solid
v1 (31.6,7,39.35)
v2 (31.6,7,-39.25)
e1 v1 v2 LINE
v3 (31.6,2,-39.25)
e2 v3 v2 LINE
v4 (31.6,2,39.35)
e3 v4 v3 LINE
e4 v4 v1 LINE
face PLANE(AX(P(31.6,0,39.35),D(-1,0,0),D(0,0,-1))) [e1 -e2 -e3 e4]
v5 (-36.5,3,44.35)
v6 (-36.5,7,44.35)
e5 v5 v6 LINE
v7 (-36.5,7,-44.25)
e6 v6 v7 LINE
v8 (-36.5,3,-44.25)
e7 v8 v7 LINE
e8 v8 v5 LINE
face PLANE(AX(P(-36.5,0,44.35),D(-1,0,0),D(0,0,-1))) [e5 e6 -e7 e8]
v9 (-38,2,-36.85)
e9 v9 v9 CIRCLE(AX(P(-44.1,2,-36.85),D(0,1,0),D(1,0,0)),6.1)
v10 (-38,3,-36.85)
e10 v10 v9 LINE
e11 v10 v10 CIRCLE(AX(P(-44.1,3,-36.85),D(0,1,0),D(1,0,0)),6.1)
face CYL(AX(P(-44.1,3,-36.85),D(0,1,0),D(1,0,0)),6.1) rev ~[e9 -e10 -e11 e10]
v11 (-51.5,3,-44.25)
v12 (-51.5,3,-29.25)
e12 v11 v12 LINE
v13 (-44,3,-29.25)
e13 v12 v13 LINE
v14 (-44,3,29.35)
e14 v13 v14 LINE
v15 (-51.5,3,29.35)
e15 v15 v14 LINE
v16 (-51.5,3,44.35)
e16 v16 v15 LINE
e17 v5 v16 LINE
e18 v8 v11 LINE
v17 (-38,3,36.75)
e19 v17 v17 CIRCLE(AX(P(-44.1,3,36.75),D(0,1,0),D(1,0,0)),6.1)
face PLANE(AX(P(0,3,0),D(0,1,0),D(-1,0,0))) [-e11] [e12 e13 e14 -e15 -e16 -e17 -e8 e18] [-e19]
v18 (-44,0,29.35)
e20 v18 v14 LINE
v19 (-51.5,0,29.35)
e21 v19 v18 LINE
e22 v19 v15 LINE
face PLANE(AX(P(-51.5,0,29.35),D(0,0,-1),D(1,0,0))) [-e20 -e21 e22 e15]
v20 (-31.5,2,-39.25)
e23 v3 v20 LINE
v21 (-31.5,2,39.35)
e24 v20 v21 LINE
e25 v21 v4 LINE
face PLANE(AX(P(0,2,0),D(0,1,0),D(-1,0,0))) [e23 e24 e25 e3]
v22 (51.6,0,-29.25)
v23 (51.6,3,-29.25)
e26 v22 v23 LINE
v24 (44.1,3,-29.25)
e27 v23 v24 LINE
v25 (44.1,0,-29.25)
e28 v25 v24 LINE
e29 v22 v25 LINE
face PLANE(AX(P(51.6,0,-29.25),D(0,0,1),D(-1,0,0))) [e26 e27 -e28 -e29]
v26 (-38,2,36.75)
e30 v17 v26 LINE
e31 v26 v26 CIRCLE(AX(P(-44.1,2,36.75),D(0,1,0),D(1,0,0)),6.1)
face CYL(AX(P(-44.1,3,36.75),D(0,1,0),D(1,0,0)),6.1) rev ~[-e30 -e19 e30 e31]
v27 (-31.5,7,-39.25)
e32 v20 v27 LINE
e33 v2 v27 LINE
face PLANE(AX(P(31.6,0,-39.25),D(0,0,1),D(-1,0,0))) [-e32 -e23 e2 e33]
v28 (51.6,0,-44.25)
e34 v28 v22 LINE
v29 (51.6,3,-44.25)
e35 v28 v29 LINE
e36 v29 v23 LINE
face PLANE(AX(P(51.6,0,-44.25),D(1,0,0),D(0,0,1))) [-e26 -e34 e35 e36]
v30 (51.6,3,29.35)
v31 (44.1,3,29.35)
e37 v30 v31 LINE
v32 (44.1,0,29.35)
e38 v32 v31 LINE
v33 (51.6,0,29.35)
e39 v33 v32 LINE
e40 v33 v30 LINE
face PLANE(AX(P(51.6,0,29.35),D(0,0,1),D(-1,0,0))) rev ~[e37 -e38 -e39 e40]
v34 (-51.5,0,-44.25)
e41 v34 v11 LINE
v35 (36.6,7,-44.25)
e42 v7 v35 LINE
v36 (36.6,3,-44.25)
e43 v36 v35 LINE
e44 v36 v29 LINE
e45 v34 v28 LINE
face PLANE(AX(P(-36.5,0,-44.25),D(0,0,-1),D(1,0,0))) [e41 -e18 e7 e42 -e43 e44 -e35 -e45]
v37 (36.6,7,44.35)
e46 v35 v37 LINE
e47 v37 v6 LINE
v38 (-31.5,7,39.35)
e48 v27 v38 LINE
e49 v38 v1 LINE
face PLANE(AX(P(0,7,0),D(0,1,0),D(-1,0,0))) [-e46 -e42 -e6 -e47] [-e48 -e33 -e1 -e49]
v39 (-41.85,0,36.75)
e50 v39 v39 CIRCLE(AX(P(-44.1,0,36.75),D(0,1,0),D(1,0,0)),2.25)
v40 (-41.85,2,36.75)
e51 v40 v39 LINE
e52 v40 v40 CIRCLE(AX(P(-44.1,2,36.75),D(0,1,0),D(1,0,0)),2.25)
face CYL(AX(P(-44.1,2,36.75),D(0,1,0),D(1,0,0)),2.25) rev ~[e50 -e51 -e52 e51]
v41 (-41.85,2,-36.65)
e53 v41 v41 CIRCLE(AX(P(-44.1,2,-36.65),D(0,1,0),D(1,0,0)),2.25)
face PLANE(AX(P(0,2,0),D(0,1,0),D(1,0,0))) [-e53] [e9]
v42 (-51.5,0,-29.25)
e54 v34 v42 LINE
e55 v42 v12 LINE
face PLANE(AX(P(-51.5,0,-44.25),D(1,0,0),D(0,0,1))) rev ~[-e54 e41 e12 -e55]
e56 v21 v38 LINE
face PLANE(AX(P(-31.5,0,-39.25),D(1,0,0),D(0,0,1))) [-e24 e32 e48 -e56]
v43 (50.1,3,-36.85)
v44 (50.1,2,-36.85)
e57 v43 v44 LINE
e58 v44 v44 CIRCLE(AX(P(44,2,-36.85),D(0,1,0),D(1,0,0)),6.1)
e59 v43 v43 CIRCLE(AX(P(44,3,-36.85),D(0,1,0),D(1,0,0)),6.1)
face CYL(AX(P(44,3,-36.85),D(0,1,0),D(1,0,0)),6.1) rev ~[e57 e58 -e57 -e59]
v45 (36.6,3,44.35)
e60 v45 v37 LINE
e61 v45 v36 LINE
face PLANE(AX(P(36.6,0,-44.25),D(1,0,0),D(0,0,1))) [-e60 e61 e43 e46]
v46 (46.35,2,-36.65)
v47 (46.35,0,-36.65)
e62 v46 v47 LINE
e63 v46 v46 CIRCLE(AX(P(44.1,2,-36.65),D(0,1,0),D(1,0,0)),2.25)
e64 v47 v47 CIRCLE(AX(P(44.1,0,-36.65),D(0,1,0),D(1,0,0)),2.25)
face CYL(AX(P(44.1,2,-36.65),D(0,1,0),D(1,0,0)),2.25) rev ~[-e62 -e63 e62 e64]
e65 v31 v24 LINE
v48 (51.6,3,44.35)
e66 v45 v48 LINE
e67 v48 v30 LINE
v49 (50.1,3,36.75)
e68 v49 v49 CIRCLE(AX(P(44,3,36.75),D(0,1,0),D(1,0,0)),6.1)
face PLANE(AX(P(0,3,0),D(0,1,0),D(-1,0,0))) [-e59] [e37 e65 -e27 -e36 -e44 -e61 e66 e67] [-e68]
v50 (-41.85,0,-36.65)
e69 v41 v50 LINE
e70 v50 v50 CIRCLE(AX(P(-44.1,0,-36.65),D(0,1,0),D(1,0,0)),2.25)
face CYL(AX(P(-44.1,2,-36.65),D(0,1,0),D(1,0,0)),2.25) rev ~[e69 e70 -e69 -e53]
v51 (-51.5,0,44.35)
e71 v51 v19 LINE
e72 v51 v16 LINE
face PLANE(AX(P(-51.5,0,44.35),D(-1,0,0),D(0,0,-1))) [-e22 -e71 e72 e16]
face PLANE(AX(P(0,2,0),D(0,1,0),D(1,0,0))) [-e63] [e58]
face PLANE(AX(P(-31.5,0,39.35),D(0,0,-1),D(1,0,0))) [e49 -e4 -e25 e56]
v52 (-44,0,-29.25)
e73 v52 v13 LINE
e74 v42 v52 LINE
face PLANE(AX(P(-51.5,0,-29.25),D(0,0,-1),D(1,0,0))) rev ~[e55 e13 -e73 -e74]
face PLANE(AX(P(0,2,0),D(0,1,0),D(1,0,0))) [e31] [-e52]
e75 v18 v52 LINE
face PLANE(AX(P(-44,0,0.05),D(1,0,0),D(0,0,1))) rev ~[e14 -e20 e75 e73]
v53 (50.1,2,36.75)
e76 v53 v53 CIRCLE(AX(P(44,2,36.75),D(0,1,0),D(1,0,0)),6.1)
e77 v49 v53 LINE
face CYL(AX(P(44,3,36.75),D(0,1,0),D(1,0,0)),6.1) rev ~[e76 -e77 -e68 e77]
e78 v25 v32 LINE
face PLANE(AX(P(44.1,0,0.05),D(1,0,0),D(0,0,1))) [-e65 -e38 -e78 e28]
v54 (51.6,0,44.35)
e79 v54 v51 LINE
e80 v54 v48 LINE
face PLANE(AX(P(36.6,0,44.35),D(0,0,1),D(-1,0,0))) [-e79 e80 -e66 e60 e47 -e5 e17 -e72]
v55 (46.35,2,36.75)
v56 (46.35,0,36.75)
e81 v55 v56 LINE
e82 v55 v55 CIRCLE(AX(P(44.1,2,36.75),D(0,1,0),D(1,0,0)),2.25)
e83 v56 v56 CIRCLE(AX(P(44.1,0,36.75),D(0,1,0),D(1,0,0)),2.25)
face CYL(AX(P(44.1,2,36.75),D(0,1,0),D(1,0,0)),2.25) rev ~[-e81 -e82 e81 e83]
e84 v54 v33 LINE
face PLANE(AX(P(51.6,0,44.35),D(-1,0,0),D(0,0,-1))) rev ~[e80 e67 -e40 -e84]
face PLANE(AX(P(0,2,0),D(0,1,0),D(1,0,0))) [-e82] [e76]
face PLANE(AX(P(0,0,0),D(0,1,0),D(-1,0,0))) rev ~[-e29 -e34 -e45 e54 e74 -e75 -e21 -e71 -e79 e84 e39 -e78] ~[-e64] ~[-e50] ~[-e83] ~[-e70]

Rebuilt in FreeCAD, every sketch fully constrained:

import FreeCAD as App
import Part
import Sketcher
from FreeCAD import Vector

doc = App.newDocument("Part")
params = doc.addObject("Spreadsheet::Sheet", "Params")
for row, (alias, value) in enumerate([
    ("sketch1_width", "63.1 mm"),
    ("sketch1_height", "78.6 mm"),
    ("pad1_length", "2 mm"),
    ("sketch2_width", "63.1 mm"),
    ("sketch2_height", "78.6 mm"),
    ("pad2_length", "7 mm"),
    ("sketch3_width", "15 mm"),
    ("sketch3_width2", "7.5 mm"),
    ("sketch3_height", "88.6 mm"),
    ("pad3_length", "3 mm"),
    ("sketch4_diameter", "12.2 mm"),
    ("pocket1_length", "1 mm"),
    ("sketch5_diameter", "4.5 mm"),
    ("pocket2_length", "2 mm"),
], start=1):
    params.set(f"A{row}", alias)
    params.set(f"B{row}", "=" + value)
    params.setAlias(f"B{row}", alias)

body = doc.addObject("PartDesign::Body", "Body")

# Sketch on XZ plane
sketch1 = doc.addObject("Sketcher::SketchObject", "Sketch")
body.addObject(sketch1)
sketch1.AttachmentSupport = (doc.XZ_Plane, [""])
sketch1.MapMode = "FlatFace"
sketch1.addGeometry([
    Part.LineSegment(Vector(-32, 39, 0), Vector(32, 39, 0)),
    Part.LineSegment(Vector(32, 39, 0), Vector(32, -39, 0)),
    Part.LineSegment(Vector(32, -39, 0), Vector(-32, -39, 0)),
    Part.LineSegment(Vector(-32, -39, 0), Vector(-32, 39, 0)),
], False)
sketch1.addConstraint([
    Sketcher.Constraint("Coincident", 0, 2, 1, 1),
    Sketcher.Constraint("Coincident", 1, 2, 2, 1),
    Sketcher.Constraint("Coincident", 2, 2, 3, 1),
    Sketcher.Constraint("Coincident", 3, 2, 0, 1),
    Sketcher.Constraint("Horizontal", 0),
    Sketcher.Constraint("Vertical", 1),
    Sketcher.Constraint("Horizontal", 2),
    Sketcher.Constraint("Vertical", 3),
    Sketcher.Constraint("DistanceX", 0, 1, 0, 2, 63.1),
    Sketcher.Constraint("DistanceY", 1, 2, 1, 1, 78.6),
    Sketcher.Constraint("DistanceX", -1, 1, 0, 2, 31.6),
    Sketcher.Constraint("DistanceY", -1, 1, 0, 2, 39.35),
])
sketch1.setExpression("Constraints[8]", "Params.sketch1_width")
sketch1.setExpression("Constraints[9]", "Params.sketch1_height")
pad1 = doc.addObject("PartDesign::Pad", "Pad")
body.addObject(pad1)
pad1.Profile = sketch1
pad1.setExpression("Length", "Params.pad1_length")
pad1.Reversed = True

# Sketch on XZ plane
sketch2 = doc.addObject("Sketcher::SketchObject", "Sketch001")
body.addObject(sketch2)
sketch2.AttachmentSupport = (doc.XZ_Plane, [""])
sketch2.MapMode = "FlatFace"
sketch2.addGeometry([
    Part.LineSegment(Vector(-36, -44, 0), Vector(-36, 44, 0)),  # 0
    Part.LineSegment(Vector(-36, 44, 0), Vector(37, 44, 0)),  # 1
    Part.LineSegment(Vector(37, 44, 0), Vector(37, -44, 0)),  # 2
    Part.LineSegment(Vector(37, -44, 0), Vector(-36, -44, 0)),  # 3
    Part.LineSegment(Vector(32, -39, 0), Vector(32, 39, 0)),  # 4
    Part.LineSegment(Vector(32, 39, 0), Vector(-32, 39, 0)),  # 5
    Part.LineSegment(Vector(-32, 39, 0), Vector(-32, -39, 0)),  # 6
    Part.LineSegment(Vector(-32, -39, 0), Vector(32, -39, 0)),  # 7
], False)
sketch2.addConstraint([
    Sketcher.Constraint("Coincident", 0, 2, 1, 1),
    Sketcher.Constraint("Coincident", 1, 2, 2, 1),
    Sketcher.Constraint("Coincident", 2, 2, 3, 1),
    Sketcher.Constraint("Coincident", 3, 2, 0, 1),
    Sketcher.Constraint("Coincident", 4, 2, 5, 1),
    Sketcher.Constraint("Coincident", 5, 2, 6, 1),
    Sketcher.Constraint("Coincident", 6, 2, 7, 1),
    Sketcher.Constraint("Coincident", 7, 2, 4, 1),
    Sketcher.Constraint("Vertical", 0),
    Sketcher.Constraint("Horizontal", 1),
    Sketcher.Constraint("Vertical", 2),
    Sketcher.Constraint("Horizontal", 3),
    Sketcher.Constraint("Vertical", 4),
    Sketcher.Constraint("Horizontal", 5),
    Sketcher.Constraint("Vertical", 6),
    Sketcher.Constraint("Horizontal", 7),
    Sketcher.Constraint("DistanceX", 5, 2, 5, 1, 63.1),
    Sketcher.Constraint("DistanceY", 4, 1, 4, 2, 78.6),
    Sketcher.Constraint("DistanceX", 4, 2, 1, 2, 5.0),
    Sketcher.Constraint("DistanceY", 4, 2, 1, 2, 5.0),
    Sketcher.Constraint("DistanceX", 0, 2, 5, 2, 5.0),
    Sketcher.Constraint("DistanceY", 3, 2, 6, 2, 5.0),
    Sketcher.Constraint("DistanceX", 0, 2, -1, 1, 36.5),
    Sketcher.Constraint("DistanceY", -1, 1, 0, 2, 44.35),
])
sketch2.setExpression("Constraints[16]", "Params.sketch2_width")
sketch2.setExpression("Constraints[17]", "Params.sketch2_height")
pad2 = doc.addObject("PartDesign::Pad", "Pad001")
body.addObject(pad2)
pad2.Profile = sketch2
pad2.setExpression("Length", "Params.pad2_length")
pad2.Reversed = True

# Sketch on XZ plane
sketch3 = doc.addObject("Sketcher::SketchObject", "Sketch002")
body.addObject(sketch3)
sketch3.AttachmentSupport = (doc.XZ_Plane, [""])
sketch3.MapMode = "FlatFace"
sketch3.addGeometry([
    Part.LineSegment(Vector(-52, 44, 0), Vector(-36, 44, 0)),  # 0
    Part.LineSegment(Vector(-36, 44, 0), Vector(-36, -44, 0)),  # 1
    Part.LineSegment(Vector(-36, -44, 0), Vector(-52, -44, 0)),  # 2
    Part.LineSegment(Vector(-52, -44, 0), Vector(-52, -29, 0)),  # 3
    Part.LineSegment(Vector(-52, -29, 0), Vector(-44, -29, 0)),  # 4
    Part.LineSegment(Vector(-44, -29, 0), Vector(-44, 29, 0)),  # 5
    Part.LineSegment(Vector(-44, 29, 0), Vector(-52, 29, 0)),  # 6
    Part.LineSegment(Vector(-52, 29, 0), Vector(-52, 44, 0)),  # 7
    Part.LineSegment(Vector(37, 44, 0), Vector(52, 44, 0)),  # 8
    Part.LineSegment(Vector(52, 44, 0), Vector(52, 29, 0)),  # 9
    Part.LineSegment(Vector(52, 29, 0), Vector(44, 29, 0)),  # 10
    Part.LineSegment(Vector(44, 29, 0), Vector(44, -29, 0)),  # 11
    Part.LineSegment(Vector(44, -29, 0), Vector(52, -29, 0)),  # 12
    Part.LineSegment(Vector(52, -29, 0), Vector(52, -44, 0)),  # 13
    Part.LineSegment(Vector(52, -44, 0), Vector(37, -44, 0)),  # 14
    Part.LineSegment(Vector(37, -44, 0), Vector(37, 44, 0)),  # 15
], False)
sketch3.addConstraint([
    Sketcher.Constraint("Coincident", 0, 2, 1, 1),
    Sketcher.Constraint("Coincident", 1, 2, 2, 1),
    Sketcher.Constraint("Coincident", 2, 2, 3, 1),
    Sketcher.Constraint("Coincident", 3, 2, 4, 1),
    Sketcher.Constraint("Coincident", 4, 2, 5, 1),
    Sketcher.Constraint("Coincident", 5, 2, 6, 1),
    Sketcher.Constraint("Coincident", 6, 2, 7, 1),
    Sketcher.Constraint("Coincident", 7, 2, 0, 1),
    Sketcher.Constraint("Coincident", 8, 2, 9, 1),
    Sketcher.Constraint("Coincident", 9, 2, 10, 1),
    Sketcher.Constraint("Coincident", 10, 2, 11, 1),
    Sketcher.Constraint("Coincident", 11, 2, 12, 1),
    Sketcher.Constraint("Coincident", 12, 2, 13, 1),
    Sketcher.Constraint("Coincident", 13, 2, 14, 1),
    Sketcher.Constraint("Coincident", 14, 2, 15, 1),
    Sketcher.Constraint("Coincident", 15, 2, 8, 1),
    Sketcher.Constraint("Horizontal", 0),
    Sketcher.Constraint("Vertical", 1),
    Sketcher.Constraint("Horizontal", 2),
    Sketcher.Constraint("Vertical", 3),
    Sketcher.Constraint("Horizontal", 4),
    Sketcher.Constraint("Vertical", 5),
    Sketcher.Constraint("Horizontal", 6),
    Sketcher.Constraint("Vertical", 7),
    Sketcher.Constraint("Horizontal", 8),
    Sketcher.Constraint("Vertical", 9),
    Sketcher.Constraint("Horizontal", 10),
    Sketcher.Constraint("Vertical", 11),
    Sketcher.Constraint("Horizontal", 12),
    Sketcher.Constraint("Vertical", 13),
    Sketcher.Constraint("Horizontal", 14),
    Sketcher.Constraint("Vertical", 15),
    Sketcher.Constraint("Horizontal", 7, 2, 8, 2),
    Sketcher.Constraint("Horizontal", 6, 2, 9, 2),
    Sketcher.Constraint("Horizontal", 4, 2, 11, 2),
    Sketcher.Constraint("Horizontal", 2, 2, 13, 2),
    Sketcher.Constraint("Vertical", 3, 2, 6, 2),
    Sketcher.Constraint("Vertical", 9, 2, 12, 2),
    Sketcher.Constraint("Equal", 2, 8),
    Sketcher.Constraint("Equal", 6, 10),
    Sketcher.Constraint("Equal", 14, 3),
    Sketcher.Constraint("Equal", 3, 7),
    Sketcher.Constraint("DistanceX", 0, 1, 0, 2, 15.0),
    Sketcher.Constraint("DistanceX", 4, 1, 4, 2, 7.5),
    Sketcher.Constraint("DistanceY", 1, 2, 1, 1, 88.6),
    Sketcher.Constraint("DistanceX", 4, 2, -1, 1, 44.0),
    Sketcher.Constraint("DistanceX", -1, 1, 8, 2, 51.6),
    Sketcher.Constraint("DistanceY", -1, 1, 0, 2, 44.35),
])
sketch3.setExpression("Constraints[42]", "Params.sketch3_width")
sketch3.setExpression("Constraints[43]", "Params.sketch3_width2")
sketch3.setExpression("Constraints[44]", "Params.sketch3_height")
pad3 = doc.addObject("PartDesign::Pad", "Pad002")
body.addObject(pad3)
pad3.Profile = sketch3
pad3.setExpression("Length", "Params.pad3_length")
pad3.Reversed = True

# Sketch on XZ plane
sketch4 = doc.addObject("Sketcher::SketchObject", "Sketch003")
body.addObject(sketch4)
sketch4.AttachmentSupport = (doc.XZ_Plane, [""])
sketch4.MapMode = "FlatFace"
sketch4.AttachmentOffset = App.Placement(Vector(0, 0, -3), App.Rotation())
sketch4.addGeometry([
    Part.Circle(Vector(44, -37, 0), Vector(0, 0, 1), 6),
    Part.Circle(Vector(44, 37, 0), Vector(0, 0, 1), 6),
    Part.Circle(Vector(-44, -37, 0), Vector(0, 0, 1), 6),
    Part.Circle(Vector(-44, 37, 0), Vector(0, 0, 1), 6),
], False)
sketch4.addConstraint([
    Sketcher.Constraint("Equal", 0, 1),
    Sketcher.Constraint("Equal", 1, 2),
    Sketcher.Constraint("Equal", 2, 3),
    Sketcher.Constraint("Horizontal", 0, 3, 2, 3),
    Sketcher.Constraint("Horizontal", 1, 3, 3, 3),
    Sketcher.Constraint("Vertical", 0, 3, 1, 3),
    Sketcher.Constraint("Vertical", 2, 3, 3, 3),
    Sketcher.Constraint("Diameter", 0, 12.2),
    Sketcher.Constraint("DistanceX", -1, 1, 0, 3, 44.0),
    Sketcher.Constraint("DistanceX", 2, 3, -1, 1, 44.1),
    Sketcher.Constraint("DistanceY", 0, 3, 1, 3, 73.6),
    Sketcher.Constraint("DistanceY", 0, 3, -1, 1, 36.85),
])
sketch4.setExpression("Constraints[7]", "Params.sketch4_diameter")
pocket1 = doc.addObject("PartDesign::Pocket", "Pocket")
body.addObject(pocket1)
pocket1.Profile = sketch4
pocket1.setExpression("Length", "Params.pocket1_length")
pocket1.Reversed = True

# Sketch on XZ plane
sketch5 = doc.addObject("Sketcher::SketchObject", "Sketch004")
body.addObject(sketch5)
sketch5.AttachmentSupport = (doc.XZ_Plane, [""])
sketch5.MapMode = "FlatFace"
sketch5.AttachmentOffset = App.Placement(Vector(0, 0, -2), App.Rotation())
sketch5.addGeometry([
    Part.Circle(Vector(-44.1, 36.8, 0), Vector(0, 0, 1), 2.2),
    Part.Circle(Vector(-44.1, -36.6, 0), Vector(0, 0, 1), 2.2),
    Part.Circle(Vector(44.1, 36.8, 0), Vector(0, 0, 1), 2.2),
    Part.Circle(Vector(44.1, -36.6, 0), Vector(0, 0, 1), 2.2),
], False)
sketch5.addConstraint([
    Sketcher.Constraint("Equal", 0, 1),
    Sketcher.Constraint("Equal", 1, 2),
    Sketcher.Constraint("Equal", 2, 3),
    Sketcher.Constraint("Symmetric", 0, 3, 2, 3, -2),
    Sketcher.Constraint("Symmetric", 1, 3, 3, 3, -2),
    Sketcher.Constraint("Vertical", 0, 3, 1, 3),
    Sketcher.Constraint("Diameter", 0, 4.5),
    Sketcher.Constraint("DistanceX", 0, 3, -1, 1, 44.1),
    Sketcher.Constraint("DistanceY", 1, 3, 0, 3, 73.4),
    Sketcher.Constraint("DistanceY", -1, 1, 0, 3, 36.75),
])
sketch5.setExpression("Constraints[6]", "Params.sketch5_diameter")
pocket2 = doc.addObject("PartDesign::Pocket", "Pocket001")
body.addObject(pocket2)
pocket2.Profile = sketch5
pocket2.setExpression("Length", "Params.pocket2_length")
pocket2.Reversed = True

doc.recompute()
